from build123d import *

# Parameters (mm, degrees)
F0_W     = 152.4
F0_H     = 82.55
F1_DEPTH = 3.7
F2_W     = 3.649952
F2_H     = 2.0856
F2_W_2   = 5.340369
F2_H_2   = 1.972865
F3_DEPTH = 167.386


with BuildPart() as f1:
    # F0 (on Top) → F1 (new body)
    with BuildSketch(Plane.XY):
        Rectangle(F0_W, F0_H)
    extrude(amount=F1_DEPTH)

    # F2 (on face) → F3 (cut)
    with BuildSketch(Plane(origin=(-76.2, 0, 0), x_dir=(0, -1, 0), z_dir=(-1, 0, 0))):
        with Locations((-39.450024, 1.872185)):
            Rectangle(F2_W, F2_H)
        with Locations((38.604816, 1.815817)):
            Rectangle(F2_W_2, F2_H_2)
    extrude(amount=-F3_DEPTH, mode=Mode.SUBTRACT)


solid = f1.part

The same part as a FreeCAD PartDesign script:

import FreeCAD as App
import Part
import Sketcher
Q = App.Units.Quantity

doc = App.newDocument("Part")
body = doc.addObject("PartDesign::Body", "Body")

sketch1 = doc.addObject("Sketcher::SketchObject", "Sketch")
body.addObject(sketch1)
sketch1.AttachmentSupport = (doc.XY_Plane, [""])
sketch1.MapMode = "FlatFace"
sketch1.addGeometry(Part.LineSegment(App.Vector(-76, 41, 0), App.Vector(-76, -41, 0)), False)
sketch1.addGeometry(Part.LineSegment(App.Vector(-76, -41, 0), App.Vector(76, -41, 0)), False)
sketch1.addGeometry(Part.LineSegment(App.Vector(76, -41, 0), App.Vector(76, 41, 0)), False)
sketch1.addGeometry(Part.LineSegment(App.Vector(76, 41, 0), App.Vector(-76, 41, 0)), False)
sketch1.addConstraint(Sketcher.Constraint("Coincident", 0, 2, 1, 1))
sketch1.addConstraint(Sketcher.Constraint("Coincident", 1, 2, 2, 1))
sketch1.addConstraint(Sketcher.Constraint("Coincident", 2, 2, 3, 1))
sketch1.addConstraint(Sketcher.Constraint("Coincident", 3, 2, 0, 1))
sketch1.addConstraint(Sketcher.Constraint("Vertical", 0))
sketch1.addConstraint(Sketcher.Constraint("Horizontal", 1))
sketch1.addConstraint(Sketcher.Constraint("Vertical", 2))
sketch1.addConstraint(Sketcher.Constraint("Horizontal", 3))
sketch1.addConstraint(Sketcher.Constraint("Symmetric", 0, 2, 2, 2, -1, 1))
sketch1.addConstraint(Sketcher.Constraint("DistanceX", 1, 1, 1, 2, Q("6 in")))
sketch1.addConstraint(Sketcher.Constraint("DistanceY", 0, 2, 0, 1, Q("3.25 in")))
pad1 = doc.addObject("PartDesign::Pad", "Pad")
body.addObject(pad1)
pad1.Profile = sketch1
pad1.Length = 3.7

sketch2 = doc.addObject("Sketcher::SketchObject", "Sketch001")
body.addObject(sketch2)
sketch2.AttachmentSupport = (doc.YZ_Plane, [""])
sketch2.MapMode = "FlatFace"
sketch2.AttachmentOffset = App.Placement(App.Vector(0, 0, -3 * 25.4), App.Rotation())
sketch2.addGeometry(Part.LineSegment(App.Vector(41.3, 2.9, 0), App.Vector(41.3, 0.8, 0)), False)
sketch2.addGeometry(Part.LineSegment(App.Vector(41.3, 0.8, 0), App.Vector(37.6, 0.8, 0)), False)
sketch2.addGeometry(Part.LineSegment(App.Vector(37.6, 0.8, 0), App.Vector(37.6, 2.9, 0)), False)
sketch2.addGeometry(Part.LineSegment(App.Vector(37.6, 2.9, 0), App.Vector(41.3, 2.9, 0)), False)
sketch2.addGeometry(Part.LineSegment(App.Vector(-35.9, 2.8, 0), App.Vector(-35.9, 0.8, 0)), False)
sketch2.addGeometry(Part.LineSegment(App.Vector(-35.9, 0.8, 0), App.Vector(-41.3, 0.8, 0)), False)
sketch2.addGeometry(Part.LineSegment(App.Vector(-41.3, 0.8, 0), App.Vector(-41.3, 2.8, 0)), False)
sketch2.addGeometry(Part.LineSegment(App.Vector(-41.3, 2.8, 0), App.Vector(-35.9, 2.8, 0)), False)
sketch2.addConstraint(Sketcher.Constraint("Coincident", 0, 2, 1, 1))
sketch2.addConstraint(Sketcher.Constraint("Coincident", 1, 2, 2, 1))
sketch2.addConstraint(Sketcher.Constraint("Coincident", 2, 2, 3, 1))
sketch2.addConstraint(Sketcher.Constraint("Coincident", 3, 2, 0, 1))
sketch2.addConstraint(Sketcher.Constraint("Coincident", 4, 2, 5, 1))
sketch2.addConstraint(Sketcher.Constraint("Coincident", 5, 2, 6, 1))
sketch2.addConstraint(Sketcher.Constraint("Coincident", 6, 2, 7, 1))
sketch2.addConstraint(Sketcher.Constraint("Coincident", 7, 2, 4, 1))
sketch2.addConstraint(Sketcher.Constraint("Vertical", 0))
sketch2.addConstraint(Sketcher.Constraint("Horizontal", 1))
sketch2.addConstraint(Sketcher.Constraint("Vertical", 2))
sketch2.addConstraint(Sketcher.Constraint("Horizontal", 3))
sketch2.addConstraint(Sketcher.Constraint("Vertical", 4))
sketch2.addConstraint(Sketcher.Constraint("Horizontal", 5))
sketch2.addConstraint(Sketcher.Constraint("Vertical", 6))
sketch2.addConstraint(Sketcher.Constraint("Horizontal", 7))
sketch2.addConstraint(Sketcher.Constraint("Symmetric", 0, 2, 5, 2, -2))
sketch2.addConstraint(Sketcher.Constraint("DistanceX", 5, 2, 0, 2, Q("3.25 in")))
sketch2.addConstraint(Sketcher.Constraint("DistanceY", 0, 2, 0, 1, Q("2.0856 mm")))
sketch2.addConstraint(Sketcher.Constraint("DistanceX", 1, 2, 1, 1, Q("3.649952 mm")))
sketch2.addConstraint(Sketcher.Constraint("DistanceX", 5, 2, 5, 1, Q("5.340369 mm")))
sketch2.addConstraint(Sketcher.Constraint("DistanceY", 4, 2, 4, 1, Q("1.972865 mm")))
sketch2.addConstraint(Sketcher.Constraint("DistanceY", -1, 1, 6, 2, Q("2.802249 mm")))
pocket1 = doc.addObject("PartDesign::Pocket", "Pocket")
body.addObject(pocket1)
pocket1.Profile = sketch2
pocket1.Length = Q("6.59 in")
pocket1.Reversed = True

doc.recompute()
